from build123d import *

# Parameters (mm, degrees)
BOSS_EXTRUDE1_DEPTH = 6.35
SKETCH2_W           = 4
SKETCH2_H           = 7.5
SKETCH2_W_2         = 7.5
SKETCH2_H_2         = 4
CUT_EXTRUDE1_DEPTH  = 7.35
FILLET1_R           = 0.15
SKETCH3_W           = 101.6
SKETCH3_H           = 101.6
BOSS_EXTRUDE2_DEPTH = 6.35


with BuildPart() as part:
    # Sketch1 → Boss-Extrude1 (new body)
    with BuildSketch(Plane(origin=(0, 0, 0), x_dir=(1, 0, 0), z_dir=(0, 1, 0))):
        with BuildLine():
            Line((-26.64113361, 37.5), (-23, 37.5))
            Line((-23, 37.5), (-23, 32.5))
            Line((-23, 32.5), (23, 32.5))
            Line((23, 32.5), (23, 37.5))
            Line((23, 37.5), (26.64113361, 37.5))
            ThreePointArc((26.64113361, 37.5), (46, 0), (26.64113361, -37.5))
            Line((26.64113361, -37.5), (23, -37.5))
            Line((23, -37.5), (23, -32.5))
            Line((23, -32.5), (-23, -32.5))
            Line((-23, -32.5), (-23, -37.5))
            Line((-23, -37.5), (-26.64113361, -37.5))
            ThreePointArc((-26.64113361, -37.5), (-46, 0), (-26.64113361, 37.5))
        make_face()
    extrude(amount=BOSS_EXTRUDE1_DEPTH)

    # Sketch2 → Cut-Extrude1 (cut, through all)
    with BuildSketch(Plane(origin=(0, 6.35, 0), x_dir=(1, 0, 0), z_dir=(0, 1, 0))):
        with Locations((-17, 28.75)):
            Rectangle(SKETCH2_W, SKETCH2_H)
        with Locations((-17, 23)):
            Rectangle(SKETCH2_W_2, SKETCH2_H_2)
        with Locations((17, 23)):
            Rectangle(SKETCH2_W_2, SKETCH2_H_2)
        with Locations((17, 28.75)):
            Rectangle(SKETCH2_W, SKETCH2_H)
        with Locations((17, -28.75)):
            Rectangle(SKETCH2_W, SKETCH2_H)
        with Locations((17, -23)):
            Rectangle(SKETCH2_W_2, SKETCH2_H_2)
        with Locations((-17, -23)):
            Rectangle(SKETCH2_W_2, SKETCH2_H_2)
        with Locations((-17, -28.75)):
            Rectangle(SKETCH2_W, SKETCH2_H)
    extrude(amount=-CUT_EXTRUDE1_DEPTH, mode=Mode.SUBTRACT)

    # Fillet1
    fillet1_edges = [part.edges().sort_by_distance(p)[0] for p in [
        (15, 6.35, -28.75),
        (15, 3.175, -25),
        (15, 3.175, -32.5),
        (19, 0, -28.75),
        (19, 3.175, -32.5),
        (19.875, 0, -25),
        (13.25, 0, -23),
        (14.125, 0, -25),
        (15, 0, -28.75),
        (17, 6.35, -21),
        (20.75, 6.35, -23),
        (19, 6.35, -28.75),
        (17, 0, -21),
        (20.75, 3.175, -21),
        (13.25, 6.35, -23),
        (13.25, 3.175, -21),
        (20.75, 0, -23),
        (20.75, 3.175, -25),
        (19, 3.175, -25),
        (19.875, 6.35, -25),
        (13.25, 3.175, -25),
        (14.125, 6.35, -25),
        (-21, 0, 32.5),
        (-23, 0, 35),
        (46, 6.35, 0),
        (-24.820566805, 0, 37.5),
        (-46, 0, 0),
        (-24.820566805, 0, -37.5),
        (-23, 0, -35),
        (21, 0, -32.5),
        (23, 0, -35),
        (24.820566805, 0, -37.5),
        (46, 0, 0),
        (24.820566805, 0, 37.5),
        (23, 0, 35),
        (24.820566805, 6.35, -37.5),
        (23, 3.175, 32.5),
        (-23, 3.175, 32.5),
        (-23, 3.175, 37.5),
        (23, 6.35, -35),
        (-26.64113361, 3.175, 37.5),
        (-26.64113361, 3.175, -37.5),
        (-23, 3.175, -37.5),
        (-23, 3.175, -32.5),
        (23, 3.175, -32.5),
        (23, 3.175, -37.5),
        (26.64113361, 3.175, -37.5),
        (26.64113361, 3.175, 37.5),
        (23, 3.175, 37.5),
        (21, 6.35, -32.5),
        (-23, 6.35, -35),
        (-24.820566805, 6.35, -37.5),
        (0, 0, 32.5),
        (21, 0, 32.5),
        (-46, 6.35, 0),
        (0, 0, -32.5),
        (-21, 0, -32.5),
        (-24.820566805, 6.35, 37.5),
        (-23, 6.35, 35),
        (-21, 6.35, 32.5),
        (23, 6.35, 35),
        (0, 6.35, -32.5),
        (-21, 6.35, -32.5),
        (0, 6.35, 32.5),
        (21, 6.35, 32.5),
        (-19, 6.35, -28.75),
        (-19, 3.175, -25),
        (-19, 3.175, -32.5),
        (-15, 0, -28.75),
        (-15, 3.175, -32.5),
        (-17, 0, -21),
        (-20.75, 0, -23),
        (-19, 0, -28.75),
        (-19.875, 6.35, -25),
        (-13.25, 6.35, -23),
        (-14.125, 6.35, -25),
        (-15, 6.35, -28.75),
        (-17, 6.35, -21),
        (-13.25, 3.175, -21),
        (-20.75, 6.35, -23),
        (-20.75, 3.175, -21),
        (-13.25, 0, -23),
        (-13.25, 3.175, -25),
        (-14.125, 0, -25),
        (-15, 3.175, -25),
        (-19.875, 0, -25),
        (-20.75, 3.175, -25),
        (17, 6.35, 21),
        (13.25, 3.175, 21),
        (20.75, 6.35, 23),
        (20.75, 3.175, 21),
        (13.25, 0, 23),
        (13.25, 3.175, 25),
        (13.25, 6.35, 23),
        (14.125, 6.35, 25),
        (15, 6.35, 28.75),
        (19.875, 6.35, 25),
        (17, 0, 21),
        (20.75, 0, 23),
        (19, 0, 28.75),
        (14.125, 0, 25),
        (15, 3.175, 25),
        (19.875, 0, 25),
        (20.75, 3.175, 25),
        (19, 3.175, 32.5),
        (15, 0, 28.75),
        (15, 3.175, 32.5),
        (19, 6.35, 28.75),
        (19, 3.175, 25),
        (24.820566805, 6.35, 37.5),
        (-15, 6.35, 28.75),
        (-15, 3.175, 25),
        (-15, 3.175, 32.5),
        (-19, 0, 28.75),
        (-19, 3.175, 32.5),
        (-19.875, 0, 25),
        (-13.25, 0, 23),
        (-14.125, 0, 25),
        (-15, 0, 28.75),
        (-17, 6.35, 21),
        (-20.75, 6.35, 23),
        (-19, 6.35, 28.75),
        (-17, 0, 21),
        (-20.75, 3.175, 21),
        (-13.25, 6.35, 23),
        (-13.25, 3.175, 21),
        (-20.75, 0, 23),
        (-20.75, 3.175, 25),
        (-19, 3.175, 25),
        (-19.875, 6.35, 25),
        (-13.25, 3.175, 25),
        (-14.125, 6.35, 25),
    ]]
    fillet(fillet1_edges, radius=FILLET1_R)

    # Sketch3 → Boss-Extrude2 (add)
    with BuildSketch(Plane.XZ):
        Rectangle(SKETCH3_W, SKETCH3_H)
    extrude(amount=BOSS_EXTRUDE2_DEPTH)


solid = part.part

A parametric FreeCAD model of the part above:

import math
import FreeCAD as App
import Part
import Sketcher
Q = App.Units.Quantity


def add_polygon(sketch, points):
    """Adds a closed chain of lines whose ends are joined by coincident constraints."""
    first, n = sketch.GeometryCount, len(points)
    for a, b in zip(points, points[1:] + points[:1]):
        sketch.addGeometry(Part.LineSegment(App.Vector(*a, 0), App.Vector(*b, 0)), False)
    for i in range(n):
        sketch.addConstraint(Sketcher.Constraint("Coincident", first + i, 2, first + (i + 1) % n, 1))

doc = App.newDocument("Part")
params = doc.addObject("Spreadsheet::Sheet", "Params")
for row, (alias, value) in enumerate([
    ("sketch1_radius", "46 mm"),
    ("sketch1_width", "46 mm"),
    ("sketch1_height", "5 mm"),
    ("pad1_length", "6.35 mm"),
    ("sketch2_width", "4 mm"),
    ("sketch2_width2", "7.5 mm"),
    ("fillet_radius", "0.15 mm"),
    ("sketch3_width", "101.6 mm"),
    ("pad2_length", "6.35 mm"),
], start=1):
    params.set(f"A{row}", alias)
    params.set(f"B{row}", "=" + value)
    params.setAlias(f"B{row}", alias)

body = doc.addObject("PartDesign::Body", "Body")

sketch1 = body.newObject("Sketcher::SketchObject", "Sketch")
sketch1.AttachmentSupport = (doc.getObject("XZ_Plane"), [""])
sketch1.MapMode = "FlatFace"
sketch1.addGeometry([
    Part.LineSegment(App.Vector(-23, -37.5, 0), App.Vector(-26.6, -37.5, 0)),
    Part.ArcOfCircle(Part.Circle(App.Vector(0, 0, 0), App.Vector(0, 0, 1), 46), math.radians(125), math.radians(235)),
    Part.LineSegment(App.Vector(-26.6, 37.5, 0), App.Vector(-23, 37.5, 0)),
    Part.LineSegment(App.Vector(-23, 37.5, 0), App.Vector(-23, 32.5, 0)),
    Part.LineSegment(App.Vector(-23, 32.5, 0), App.Vector(23, 32.5, 0)),
    Part.LineSegment(App.Vector(23, 32.5, 0), App.Vector(23, 37.5, 0)),
    Part.LineSegment(App.Vector(23, 37.5, 0), App.Vector(26.6, 37.5, 0)),
    Part.ArcOfCircle(Part.Circle(App.Vector(0, 0, 0), App.Vector(0, 0, 1), 46), math.radians(-55), math.radians(55)),
    Part.LineSegment(App.Vector(26.6, -37.5, 0), App.Vector(23, -37.5, 0)),
    Part.LineSegment(App.Vector(23, -37.5, 0), App.Vector(23, -32.5, 0)),
    Part.LineSegment(App.Vector(23, -32.5, 0), App.Vector(-23, -32.5, 0)),
    Part.LineSegment(App.Vector(-23, -32.5, 0), App.Vector(-23, -37.5, 0)),
], False)
sketch1.addConstraint([
    Sketcher.Constraint("Coincident", 0, 2, 1, 2),
    Sketcher.Constraint("Coincident", 1, 1, 2, 1),
    Sketcher.Constraint("Coincident", 2, 2, 3, 1),
    Sketcher.Constraint("Coincident", 3, 2, 4, 1),
    Sketcher.Constraint("Coincident", 4, 2, 5, 1),
    Sketcher.Constraint("Coincident", 5, 2, 6, 1),
    Sketcher.Constraint("Coincident", 6, 2, 7, 2),
    Sketcher.Constraint("Coincident", 7, 1, 8, 1),
    Sketcher.Constraint("Coincident", 8, 2, 9, 1),
    Sketcher.Constraint("Coincident", 9, 2, 10, 1),
    Sketcher.Constraint("Coincident", 10, 2, 11, 1),
    Sketcher.Constraint("Coincident", 11, 2, 0, 1),
    Sketcher.Constraint("Horizontal", 0),
    Sketcher.Constraint("Horizontal", 2),
    Sketcher.Constraint("Vertical", 3),
    Sketcher.Constraint("Horizontal", 4),
    Sketcher.Constraint("Vertical", 5),
    Sketcher.Constraint("Horizontal", 6),
    Sketcher.Constraint("Horizontal", 8),
    Sketcher.Constraint("Vertical", 9),
    Sketcher.Constraint("Horizontal", 10),
    Sketcher.Constraint("Vertical", 11),
    Sketcher.Constraint("Coincident", 1, 3, -1, 1),
    Sketcher.Constraint("Coincident", 7, 3, -1, 1),
    Sketcher.Constraint("Equal", 1, 7),
    Sketcher.Constraint("Symmetric", 2, 2, 8, 2, -1, 1),
    Sketcher.Constraint("Symmetric", 4, 2, 10, 2, -1, 1),
    Sketcher.Constraint("Symmetric", 2, 2, 5, 2, -2),
    Sketcher.Constraint("Horizontal", 0, 2, 7, 1),
    Sketcher.Constraint("Radius", 1, Q("46 mm")),
    Sketcher.Constraint("DistanceX", 4, 1, 4, 2, Q("46 mm")),
    Sketcher.Constraint("DistanceY", 3, 2, 3, 1, Q("5 mm")),
    Sketcher.Constraint("DistanceY", 0, 2, 1, 1, Q("75 mm")),
])
sketch1.setExpression("Constraints[29]", "Params.sketch1_radius")
sketch1.setExpression("Constraints[30]", "Params.sketch1_width")
sketch1.setExpression("Constraints[31]", "Params.sketch1_height")
pad1 = body.newObject("PartDesign::Pad", "Pad")
pad1.Profile = sketch1
pad1.setExpression("Length", "Params.pad1_length")
pad1.Reversed = True

sketch2 = body.newObject("Sketcher::SketchObject", "Sketch001")
sketch2.AttachmentSupport = (doc.getObject("XZ_Plane"), [""])
sketch2.MapMode = "FlatFace"
sketch2.AttachmentOffset = App.Placement(App.Vector(0, 0, -6.35), App.Rotation())
add_polygon(sketch2, [(-19, -32.5), (-19, -25), (-20.8, -25), (-20.8, -21), (-13.2, -21), (-13.2, -25), (-15, -25), (-15, -32.5)])
add_polygon(sketch2, [(13.2, -25), (13.2, -21), (20.8, -21), (20.8, -25), (19, -25), (19, -32.5), (15, -32.5), (15, -25)])
add_polygon(sketch2, [(15, 25), (15, 32.5), (19, 32.5), (19, 25), (20.8, 25), (20.8, 21), (13.2, 21), (13.2, 25)])
add_polygon(sketch2, [(-20.8, 21), (-20.8, 25), (-19, 25), (-19, 32.5), (-15, 32.5), (-15, 25), (-13.2, 25), (-13.2, 21)])
sketch2.addConstraint([
    Sketcher.Constraint("Vertical", 0),
    Sketcher.Constraint("Horizontal", 1),
    Sketcher.Constraint("Vertical", 2),
    Sketcher.Constraint("Horizontal", 3),
    Sketcher.Constraint("Vertical", 4),
    Sketcher.Constraint("Horizontal", 5),
    Sketcher.Constraint("Vertical", 6),
    Sketcher.Constraint("Horizontal", 7),
    Sketcher.Constraint("Vertical", 8),
    Sketcher.Constraint("Horizontal", 9),
    Sketcher.Constraint("Vertical", 10),
    Sketcher.Constraint("Horizontal", 11),
    Sketcher.Constraint("Vertical", 12),
    Sketcher.Constraint("Horizontal", 13),
    Sketcher.Constraint("Vertical", 14),
    Sketcher.Constraint("Horizontal", 15),
    Sketcher.Constraint("Vertical", 16),
    Sketcher.Constraint("Horizontal", 17),
    Sketcher.Constraint("Vertical", 18),
    Sketcher.Constraint("Horizontal", 19),
    Sketcher.Constraint("Vertical", 20),
    Sketcher.Constraint("Horizontal", 21),
    Sketcher.Constraint("Vertical", 22),
    Sketcher.Constraint("Horizontal", 23),
    Sketcher.Constraint("Vertical", 24),
    Sketcher.Constraint("Horizontal", 25),
    Sketcher.Constraint("Vertical", 26),
    Sketcher.Constraint("Horizontal", 27),
    Sketcher.Constraint("Vertical", 28),
    Sketcher.Constraint("Horizontal", 29),
    Sketcher.Constraint("Vertical", 30),
    Sketcher.Constraint("Horizontal", 31),
    Sketcher.Constraint("Symmetric", 6, 2, 16, 2, -1, 1),
    Sketcher.Constraint("Symmetric", 0, 2, 18, 2, -1, 1),
    Sketcher.Constraint("Symmetric", 2, 2, 20, 2, -1, 1),
    Sketcher.Constraint("Symmetric", 4, 2, 22, 2, -1, 1),
    Sketcher.Constraint("Symmetric", 10, 2, 24, 2, -1, 1),
    Sketcher.Constraint("Symmetric", 12, 2, 26, 2, -1, 1),
    Sketcher.Constraint("Symmetric", 14, 2, 28, 2, -1, 1),
    Sketcher.Constraint("Symmetric", 8, 2, 30, 2, -1, 1),
    Sketcher.Constraint("Symmetric", 3, 2, 8, 2, -2),
    Sketcher.Constraint("Symmetric", 1, 2, 10, 2, -2),
    Sketcher.Constraint("Symmetric", 7, 2, 12, 2, -2),
    Sketcher.Constraint("Symmetric", 5, 2, 14, 2, -2),
    Sketcher.Constraint("Horizontal", 1, 2, 4, 2),
    Sketcher.Constraint("Equal", 1, 5),
    Sketcher.Constraint("Equal", 31, 0),
    Sketcher.Constraint("Equal", 27, 2),
    Sketcher.Constraint("DistanceX", 7, 2, 7, 1, Q("4 mm")),
    Sketcher.Constraint("DistanceX", 3, 1, 3, 2, Q("7.5 mm")),
    Sketcher.Constraint("DistanceX", 0, 2, -1, 1, Q("19 mm")),
    Sketcher.Constraint("DistanceY", 0, 2, -1, 1, Q("25 mm")),
])
sketch2.setExpression("Constraints[80]", "Params.sketch2_width")
sketch2.setExpression("Constraints[81]", "Params.sketch2_width2")
pocket1 = body.newObject("PartDesign::Pocket", "Pocket")
pocket1.Profile = sketch2
pocket1.Type = "ThroughAll"
pocket1.Reversed = True
doc.recompute()

fillet = body.newObject("PartDesign::Fillet", "Fillet")
fillet.Base = (pocket1, ["Edge1"])
fillet.UseAllEdges = True
fillet.setExpression("Radius", "Params.fillet_radius")

sketch3 = body.newObject("Sketcher::SketchObject", "Sketch002")
sketch3.AttachmentSupport = (doc.getObject("XZ_Plane"), [""])
sketch3.MapMode = "FlatFace"
add_polygon(sketch3, [(-51, 51), (-51, -51), (51, -51), (51, 51)])
sketch3.addConstraint([
    Sketcher.Constraint("Vertical", 0),
    Sketcher.Constraint("Horizontal", 1),
    Sketcher.Constraint("Vertical", 2),
    Sketcher.Constraint("Horizontal", 3),
    Sketcher.Constraint("Symmetric", 0, 2, 2, 2, -1, 1),
    Sketcher.Constraint("Equal", 3, 0),
    Sketcher.Constraint("DistanceX", 1, 1, 1, 2, Q("101.6 mm")),
])
sketch3.setExpression("Constraints[10]", "Params.sketch3_width")
pad2 = body.newObject("PartDesign::Pad", "Pad001")
pad2.Profile = sketch3
pad2.setExpression("Length", "Params.pad2_length")

doc.recompute()
